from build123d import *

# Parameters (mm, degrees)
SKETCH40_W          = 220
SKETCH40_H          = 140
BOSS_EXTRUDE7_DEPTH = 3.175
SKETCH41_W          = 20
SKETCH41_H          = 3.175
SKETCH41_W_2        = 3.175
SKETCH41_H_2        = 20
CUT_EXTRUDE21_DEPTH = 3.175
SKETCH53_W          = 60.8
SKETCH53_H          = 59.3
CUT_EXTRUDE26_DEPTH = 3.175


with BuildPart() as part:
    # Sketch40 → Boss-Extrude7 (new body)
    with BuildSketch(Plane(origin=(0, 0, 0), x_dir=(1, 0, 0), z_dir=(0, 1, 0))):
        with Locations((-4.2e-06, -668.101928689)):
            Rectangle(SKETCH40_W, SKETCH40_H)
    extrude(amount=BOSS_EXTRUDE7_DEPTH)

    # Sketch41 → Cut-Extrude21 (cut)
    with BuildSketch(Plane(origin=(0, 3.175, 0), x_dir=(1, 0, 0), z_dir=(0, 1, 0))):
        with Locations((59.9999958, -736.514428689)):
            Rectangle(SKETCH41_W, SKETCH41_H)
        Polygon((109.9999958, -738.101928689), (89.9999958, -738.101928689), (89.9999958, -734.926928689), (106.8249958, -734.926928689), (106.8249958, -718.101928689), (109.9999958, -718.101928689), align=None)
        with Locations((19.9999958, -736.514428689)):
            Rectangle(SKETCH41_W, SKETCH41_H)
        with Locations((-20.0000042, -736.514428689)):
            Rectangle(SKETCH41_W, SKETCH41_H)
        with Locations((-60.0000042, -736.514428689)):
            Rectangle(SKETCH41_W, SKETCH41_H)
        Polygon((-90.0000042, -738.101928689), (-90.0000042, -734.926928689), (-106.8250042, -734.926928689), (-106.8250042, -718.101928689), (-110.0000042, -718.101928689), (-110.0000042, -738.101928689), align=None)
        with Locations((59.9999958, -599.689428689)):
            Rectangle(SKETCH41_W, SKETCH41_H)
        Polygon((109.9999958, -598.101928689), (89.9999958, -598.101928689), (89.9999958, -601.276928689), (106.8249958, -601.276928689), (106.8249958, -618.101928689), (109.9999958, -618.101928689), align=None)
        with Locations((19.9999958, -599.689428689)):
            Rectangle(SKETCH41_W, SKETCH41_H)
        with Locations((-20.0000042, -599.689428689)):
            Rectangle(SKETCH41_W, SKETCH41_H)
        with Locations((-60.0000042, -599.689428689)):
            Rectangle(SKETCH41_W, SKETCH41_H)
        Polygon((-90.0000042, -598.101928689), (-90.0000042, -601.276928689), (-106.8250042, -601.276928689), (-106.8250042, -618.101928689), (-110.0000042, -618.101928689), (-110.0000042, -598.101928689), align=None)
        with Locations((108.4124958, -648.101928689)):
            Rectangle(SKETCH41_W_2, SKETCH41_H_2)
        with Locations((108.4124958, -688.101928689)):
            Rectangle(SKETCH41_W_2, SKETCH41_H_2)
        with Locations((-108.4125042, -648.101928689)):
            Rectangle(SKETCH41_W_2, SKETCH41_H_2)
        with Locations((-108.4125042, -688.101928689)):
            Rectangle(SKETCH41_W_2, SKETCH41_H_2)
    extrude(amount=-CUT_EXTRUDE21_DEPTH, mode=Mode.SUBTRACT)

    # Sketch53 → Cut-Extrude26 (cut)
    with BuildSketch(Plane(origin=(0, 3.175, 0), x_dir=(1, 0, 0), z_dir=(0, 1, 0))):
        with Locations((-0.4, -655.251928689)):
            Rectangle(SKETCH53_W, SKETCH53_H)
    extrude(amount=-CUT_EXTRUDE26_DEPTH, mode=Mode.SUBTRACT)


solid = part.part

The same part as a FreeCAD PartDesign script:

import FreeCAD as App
import Part
import Sketcher
from FreeCAD import Vector

doc = App.newDocument("Part")
body = doc.addObject("PartDesign::Body", "Body")

# Sketch on XZ plane
sketch1 = body.newObject("Sketcher::SketchObject", "Sketch")
sketch1.AttachmentSupport = (doc.getObject("XZ_Plane"), [""])
sketch1.MapMode = "FlatFace"
sketch1.addGeometry(Part.LineSegment(Vector(-110, 598, 0), Vector(-110, 738, 0)), False)
sketch1.addGeometry(Part.LineSegment(Vector(-110, 738, 0), Vector(110, 738, 0)), False)
sketch1.addGeometry(Part.LineSegment(Vector(110, 738, 0), Vector(110, 598, 0)), False)
sketch1.addGeometry(Part.LineSegment(Vector(110, 598, 0), Vector(-110, 598, 0)), False)
sketch1.addConstraint(Sketcher.Constraint("Coincident", 0, 2, 1, 1))
sketch1.addConstraint(Sketcher.Constraint("Coincident", 1, 2, 2, 1))
sketch1.addConstraint(Sketcher.Constraint("Coincident", 2, 2, 3, 1))
sketch1.addConstraint(Sketcher.Constraint("Coincident", 3, 2, 0, 1))
sketch1.addConstraint(Sketcher.Constraint("Vertical", 0))
sketch1.addConstraint(Sketcher.Constraint("Horizontal", 1))
sketch1.addConstraint(Sketcher.Constraint("Vertical", 2))
sketch1.addConstraint(Sketcher.Constraint("Horizontal", 3))
sketch1.addConstraint(Sketcher.Constraint("DistanceX", 1, 1, 1, 2, 220.0))
sketch1.addConstraint(Sketcher.Constraint("DistanceY", 0, 1, 0, 2, 140.0))
sketch1.addConstraint(Sketcher.Constraint("DistanceY", -1, 1, 0, 2, 738.101929))
sketch1.addConstraint(Sketcher.Constraint("DistanceX", 0, 2, -1, 1, 110.000004))
pad1 = body.newObject("PartDesign::Pad", "Pad")
pad1.Profile = sketch1
pad1.Length = 3.175
pad1.Reversed = True

# Sketch on XZ plane
sketch2 = body.newObject("Sketcher::SketchObject", "Sketch001")
sketch2.AttachmentSupport = (doc.getObject("XZ_Plane"), [""])
sketch2.MapMode = "FlatFace"
sketch2.AttachmentOffset = App.Placement(Vector(0, 0, -3.175), App.Rotation())
sketch2.addGeometry(Part.LineSegment(Vector(50, 734.9, 0), Vector(50, 738.1, 0)), False)
sketch2.addGeometry(Part.LineSegment(Vector(50, 738.1, 0), Vector(70, 738.1, 0)), False)
sketch2.addGeometry(Part.LineSegment(Vector(70, 738.1, 0), Vector(70, 734.9, 0)), False)
sketch2.addGeometry(Part.LineSegment(Vector(70, 734.9, 0), Vector(50, 734.9, 0)), False)
sketch2.addGeometry(Part.LineSegment(Vector(90, 738.1, 0), Vector(110, 738.1, 0)), False)
sketch2.addGeometry(Part.LineSegment(Vector(110, 738.1, 0), Vector(110, 718.1, 0)), False)
sketch2.addGeometry(Part.LineSegment(Vector(110, 718.1, 0), Vector(106.8, 718.1, 0)), False)
sketch2.addGeometry(Part.LineSegment(Vector(106.8, 718.1, 0), Vector(106.8, 734.9, 0)), False)
sketch2.addGeometry(Part.LineSegment(Vector(106.8, 734.9, 0), Vector(90, 734.9, 0)), False)
sketch2.addGeometry(Part.LineSegment(Vector(90, 734.9, 0), Vector(90, 738.1, 0)), False)
sketch2.addGeometry(Part.LineSegment(Vector(10, 734.9, 0), Vector(10, 738.1, 0)), False)
sketch2.addGeometry(Part.LineSegment(Vector(10, 738.1, 0), Vector(30, 738.1, 0)), False)
sketch2.addGeometry(Part.LineSegment(Vector(30, 738.1, 0), Vector(30, 734.9, 0)), False)
sketch2.addGeometry(Part.LineSegment(Vector(30, 734.9, 0), Vector(10, 734.9, 0)), False)
sketch2.addGeometry(Part.LineSegment(Vector(-30, 734.9, 0), Vector(-30, 738.1, 0)), False)
sketch2.addGeometry(Part.LineSegment(Vector(-30, 738.1, 0), Vector(-10, 738.1, 0)), False)
sketch2.addGeometry(Part.LineSegment(Vector(-10, 738.1, 0), Vector(-10, 734.9, 0)), False)
sketch2.addGeometry(Part.LineSegment(Vector(-10, 734.9, 0), Vector(-30, 734.9, 0)), False)
sketch2.addGeometry(Part.LineSegment(Vector(-70, 734.9, 0), Vector(-70, 738.1, 0)), False)
sketch2.addGeometry(Part.LineSegment(Vector(-70, 738.1, 0), Vector(-50, 738.1, 0)), False)
sketch2.addGeometry(Part.LineSegment(Vector(-50, 738.1, 0), Vector(-50, 734.9, 0)), False)
sketch2.addGeometry(Part.LineSegment(Vector(-50, 734.9, 0), Vector(-70, 734.9, 0)), False)
sketch2.addGeometry(Part.LineSegment(Vector(-90, 738.1, 0), Vector(-90, 734.9, 0)), False)
sketch2.addGeometry(Part.LineSegment(Vector(-90, 734.9, 0), Vector(-106.8, 734.9, 0)), False)
sketch2.addGeometry(Part.LineSegment(Vector(-106.8, 734.9, 0), Vector(-106.8, 718.1, 0)), False)
sketch2.addGeometry(Part.LineSegment(Vector(-106.8, 718.1, 0), Vector(-110, 718.1, 0)), False)
sketch2.addGeometry(Part.LineSegment(Vector(-110, 718.1, 0), Vector(-110, 738.1, 0)), False)
sketch2.addGeometry(Part.LineSegment(Vector(-110, 738.1, 0), Vector(-90, 738.1, 0)), False)
sketch2.addGeometry(Part.LineSegment(Vector(50, 598.1, 0), Vector(50, 601.3, 0)), False)
sketch2.addGeometry(Part.LineSegment(Vector(50, 601.3, 0), Vector(70, 601.3, 0)), False)
sketch2.addGeometry(Part.LineSegment(Vector(70, 601.3, 0), Vector(70, 598.1, 0)), False)
sketch2.addGeometry(Part.LineSegment(Vector(70, 598.1, 0), Vector(50, 598.1, 0)), False)
sketch2.addGeometry(Part.LineSegment(Vector(110, 598.1, 0), Vector(90, 598.1, 0)), False)
sketch2.addGeometry(Part.LineSegment(Vector(90, 598.1, 0), Vector(90, 601.3, 0)), False)
sketch2.addGeometry(Part.LineSegment(Vector(90, 601.3, 0), Vector(106.8, 601.3, 0)), False)
sketch2.addGeometry(Part.LineSegment(Vector(106.8, 601.3, 0), Vector(106.8, 618.1, 0)), False)
sketch2.addGeometry(Part.LineSegment(Vector(106.8, 618.1, 0), Vector(110, 618.1, 0)), False)
sketch2.addGeometry(Part.LineSegment(Vector(110, 618.1, 0), Vector(110, 598.1, 0)), False)
sketch2.addGeometry(Part.LineSegment(Vector(10, 598.1, 0), Vector(10, 601.3, 0)), False)
sketch2.addGeometry(Part.LineSegment(Vector(10, 601.3, 0), Vector(30, 601.3, 0)), False)
sketch2.addGeometry(Part.LineSegment(Vector(30, 601.3, 0), Vector(30, 598.1, 0)), False)
sketch2.addGeometry(Part.LineSegment(Vector(30, 598.1, 0), Vector(10, 598.1, 0)), False)
sketch2.addGeometry(Part.LineSegment(Vector(-30, 598.1, 0), Vector(-30, 601.3, 0)), False)
sketch2.addGeometry(Part.LineSegment(Vector(-30, 601.3, 0), Vector(-10, 601.3, 0)), False)
sketch2.addGeometry(Part.LineSegment(Vector(-10, 601.3, 0), Vector(-10, 598.1, 0)), False)
sketch2.addGeometry(Part.LineSegment(Vector(-10, 598.1, 0), Vector(-30, 598.1, 0)), False)
sketch2.addGeometry(Part.LineSegment(Vector(-70, 598.1, 0), Vector(-70, 601.3, 0)), False)
sketch2.addGeometry(Part.LineSegment(Vector(-70, 601.3, 0), Vector(-50, 601.3, 0)), False)
sketch2.addGeometry(Part.LineSegment(Vector(-50, 601.3, 0), Vector(-50, 598.1, 0)), False)
sketch2.addGeometry(Part.LineSegment(Vector(-50, 598.1, 0), Vector(-70, 598.1, 0)), False)
sketch2.addGeometry(Part.LineSegment(Vector(-90, 601.3, 0), Vector(-90, 598.1, 0)), False)
sketch2.addGeometry(Part.LineSegment(Vector(-90, 598.1, 0), Vector(-110, 598.1, 0)), False)
sketch2.addGeometry(Part.LineSegment(Vector(-110, 598.1, 0), Vector(-110, 618.1, 0)), False)
sketch2.addGeometry(Part.LineSegment(Vector(-110, 618.1, 0), Vector(-106.8, 618.1, 0)), False)
sketch2.addGeometry(Part.LineSegment(Vector(-106.8, 618.1, 0), Vector(-106.8, 601.3, 0)), False)
sketch2.addGeometry(Part.LineSegment(Vector(-106.8, 601.3, 0), Vector(-90, 601.3, 0)), False)
sketch2.addGeometry(Part.LineSegment(Vector(106.8, 638.1, 0), Vector(106.8, 658.1, 0)), False)
sketch2.addGeometry(Part.LineSegment(Vector(106.8, 658.1, 0), Vector(110, 658.1, 0)), False)
sketch2.addGeometry(Part.LineSegment(Vector(110, 658.1, 0), Vector(110, 638.1, 0)), False)
sketch2.addGeometry(Part.LineSegment(Vector(110, 638.1, 0), Vector(106.8, 638.1, 0)), False)
sketch2.addGeometry(Part.LineSegment(Vector(106.8, 678.1, 0), Vector(106.8, 698.1, 0)), False)
sketch2.addGeometry(Part.LineSegment(Vector(106.8, 698.1, 0), Vector(110, 698.1, 0)), False)
sketch2.addGeometry(Part.LineSegment(Vector(110, 698.1, 0), Vector(110, 678.1, 0)), False)
sketch2.addGeometry(Part.LineSegment(Vector(110, 678.1, 0), Vector(106.8, 678.1, 0)), False)
sketch2.addGeometry(Part.LineSegment(Vector(-110, 638.1, 0), Vector(-110, 658.1, 0)), False)
sketch2.addGeometry(Part.LineSegment(Vector(-110, 658.1, 0), Vector(-106.8, 658.1, 0)), False)
sketch2.addGeometry(Part.LineSegment(Vector(-106.8, 658.1, 0), Vector(-106.8, 638.1, 0)), False)
sketch2.addGeometry(Part.LineSegment(Vector(-106.8, 638.1, 0), Vector(-110, 638.1, 0)), False)
sketch2.addGeometry(Part.LineSegment(Vector(-110, 678.1, 0), Vector(-110, 698.1, 0)), False)
sketch2.addGeometry(Part.LineSegment(Vector(-110, 698.1, 0), Vector(-106.8, 698.1, 0)), False)
sketch2.addGeometry(Part.LineSegment(Vector(-106.8, 698.1, 0), Vector(-106.8, 678.1, 0)), False)
sketch2.addGeometry(Part.LineSegment(Vector(-106.8, 678.1, 0), Vector(-110, 678.1, 0)), False)
sketch2.addConstraint(Sketcher.Constraint("Coincident", 0, 2, 1, 1))
sketch2.addConstraint(Sketcher.Constraint("Coincident", 1, 2, 2, 1))
sketch2.addConstraint(Sketcher.Constraint("Coincident", 2, 2, 3, 1))
sketch2.addConstraint(Sketcher.Constraint("Coincident", 3, 2, 0, 1))
sketch2.addConstraint(Sketcher.Constraint("Coincident", 4, 2, 5, 1))
sketch2.addConstraint(Sketcher.Constraint("Coincident", 5, 2, 6, 1))
sketch2.addConstraint(Sketcher.Constraint("Coincident", 6, 2, 7, 1))
sketch2.addConstraint(Sketcher.Constraint("Coincident", 7, 2, 8, 1))
sketch2.addConstraint(Sketcher.Constraint("Coincident", 8, 2, 9, 1))
sketch2.addConstraint(Sketcher.Constraint("Coincident", 9, 2, 4, 1))
sketch2.addConstraint(Sketcher.Constraint("Coincident", 10, 2, 11, 1))
sketch2.addConstraint(Sketcher.Constraint("Coincident", 11, 2, 12, 1))
sketch2.addConstraint(Sketcher.Constraint("Coincident", 12, 2, 13, 1))
sketch2.addConstraint(Sketcher.Constraint("Coincident", 13, 2, 10, 1))
sketch2.addConstraint(Sketcher.Constraint("Coincident", 14, 2, 15, 1))
sketch2.addConstraint(Sketcher.Constraint("Coincident", 15, 2, 16, 1))
sketch2.addConstraint(Sketcher.Constraint("Coincident", 16, 2, 17, 1))
sketch2.addConstraint(Sketcher.Constraint("Coincident", 17, 2, 14, 1))
sketch2.addConstraint(Sketcher.Constraint("Coincident", 18, 2, 19, 1))
sketch2.addConstraint(Sketcher.Constraint("Coincident", 19, 2, 20, 1))
sketch2.addConstraint(Sketcher.Constraint("Coincident", 20, 2, 21, 1))
sketch2.addConstraint(Sketcher.Constraint("Coincident", 21, 2, 18, 1))
sketch2.addConstraint(Sketcher.Constraint("Coincident", 22, 2, 23, 1))
sketch2.addConstraint(Sketcher.Constraint("Coincident", 23, 2, 24, 1))
sketch2.addConstraint(Sketcher.Constraint("Coincident", 24, 2, 25, 1))
sketch2.addConstraint(Sketcher.Constraint("Coincident", 25, 2, 26, 1))
sketch2.addConstraint(Sketcher.Constraint("Coincident", 26, 2, 27, 1))
sketch2.addConstraint(Sketcher.Constraint("Coincident", 27, 2, 22, 1))
sketch2.addConstraint(Sketcher.Constraint("Coincident", 28, 2, 29, 1))
sketch2.addConstraint(Sketcher.Constraint("Coincident", 29, 2, 30, 1))
sketch2.addConstraint(Sketcher.Constraint("Coincident", 30, 2, 31, 1))
sketch2.addConstraint(Sketcher.Constraint("Coincident", 31, 2, 28, 1))
sketch2.addConstraint(Sketcher.Constraint("Coincident", 32, 2, 33, 1))
sketch2.addConstraint(Sketcher.Constraint("Coincident", 33, 2, 34, 1))
sketch2.addConstraint(Sketcher.Constraint("Coincident", 34, 2, 35, 1))
sketch2.addConstraint(Sketcher.Constraint("Coincident", 35, 2, 36, 1))
sketch2.addConstraint(Sketcher.Constraint("Coincident", 36, 2, 37, 1))
sketch2.addConstraint(Sketcher.Constraint("Coincident", 37, 2, 32, 1))
sketch2.addConstraint(Sketcher.Constraint("Coincident", 38, 2, 39, 1))
sketch2.addConstraint(Sketcher.Constraint("Coincident", 39, 2, 40, 1))
sketch2.addConstraint(Sketcher.Constraint("Coincident", 40, 2, 41, 1))
sketch2.addConstraint(Sketcher.Constraint("Coincident", 41, 2, 38, 1))
sketch2.addConstraint(Sketcher.Constraint("Coincident", 42, 2, 43, 1))
sketch2.addConstraint(Sketcher.Constraint("Coincident", 43, 2, 44, 1))
sketch2.addConstraint(Sketcher.Constraint("Coincident", 44, 2, 45, 1))
sketch2.addConstraint(Sketcher.Constraint("Coincident", 45, 2, 42, 1))
sketch2.addConstraint(Sketcher.Constraint("Coincident", 46, 2, 47, 1))
sketch2.addConstraint(Sketcher.Constraint("Coincident", 47, 2, 48, 1))
sketch2.addConstraint(Sketcher.Constraint("Coincident", 48, 2, 49, 1))
sketch2.addConstraint(Sketcher.Constraint("Coincident", 49, 2, 46, 1))
sketch2.addConstraint(Sketcher.Constraint("Coincident", 50, 2, 51, 1))
sketch2.addConstraint(Sketcher.Constraint("Coincident", 51, 2, 52, 1))
sketch2.addConstraint(Sketcher.Constraint("Coincident", 52, 2, 53, 1))
sketch2.addConstraint(Sketcher.Constraint("Coincident", 53, 2, 54, 1))
sketch2.addConstraint(Sketcher.Constraint("Coincident", 54, 2, 55, 1))
sketch2.addConstraint(Sketcher.Constraint("Coincident", 55, 2, 50, 1))
sketch2.addConstraint(Sketcher.Constraint("Coincident", 56, 2, 57, 1))
sketch2.addConstraint(Sketcher.Constraint("Coincident", 57, 2, 58, 1))
sketch2.addConstraint(Sketcher.Constraint("Coincident", 58, 2, 59, 1))
sketch2.addConstraint(Sketcher.Constraint("Coincident", 59, 2, 56, 1))
sketch2.addConstraint(Sketcher.Constraint("Coincident", 60, 2, 61, 1))
sketch2.addConstraint(Sketcher.Constraint("Coincident", 61, 2, 62, 1))
sketch2.addConstraint(Sketcher.Constraint("Coincident", 62, 2, 63, 1))
sketch2.addConstraint(Sketcher.Constraint("Coincident", 63, 2, 60, 1))
sketch2.addConstraint(Sketcher.Constraint("Coincident", 64, 2, 65, 1))
sketch2.addConstraint(Sketcher.Constraint("Coincident", 65, 2, 66, 1))
sketch2.addConstraint(Sketcher.Constraint("Coincident", 66, 2, 67, 1))
sketch2.addConstraint(Sketcher.Constraint("Coincident", 67, 2, 64, 1))
sketch2.addConstraint(Sketcher.Constraint("Coincident", 68, 2, 69, 1))
sketch2.addConstraint(Sketcher.Constraint("Coincident", 69, 2, 70, 1))
sketch2.addConstraint(Sketcher.Constraint("Coincident", 70, 2, 71, 1))
sketch2.addConstraint(Sketcher.Constraint("Coincident", 71, 2, 68, 1))
sketch2.addConstraint(Sketcher.Constraint("Vertical", 0))
sketch2.addConstraint(Sketcher.Constraint("Horizontal", 1))
sketch2.addConstraint(Sketcher.Constraint("Vertical", 2))
sketch2.addConstraint(Sketcher.Constraint("Horizontal", 3))
sketch2.addConstraint(Sketcher.Constraint("Horizontal", 4))
sketch2.addConstraint(Sketcher.Constraint("Vertical", 5))
sketch2.addConstraint(Sketcher.Constraint("Horizontal", 6))
sketch2.addConstraint(Sketcher.Constraint("Vertical", 7))
sketch2.addConstraint(Sketcher.Constraint("Horizontal", 8))
sketch2.addConstraint(Sketcher.Constraint("Vertical", 9))
sketch2.addConstraint(Sketcher.Constraint("Vertical", 10))
sketch2.addConstraint(Sketcher.Constraint("Horizontal", 11))
sketch2.addConstraint(Sketcher.Constraint("Vertical", 12))
sketch2.addConstraint(Sketcher.Constraint("Horizontal", 13))
sketch2.addConstraint(Sketcher.Constraint("Vertical", 14))
sketch2.addConstraint(Sketcher.Constraint("Horizontal", 15))
sketch2.addConstraint(Sketcher.Constraint("Vertical", 16))
sketch2.addConstraint(Sketcher.Constraint("Horizontal", 17))
sketch2.addConstraint(Sketcher.Constraint("Vertical", 18))
sketch2.addConstraint(Sketcher.Constraint("Horizontal", 19))
sketch2.addConstraint(Sketcher.Constraint("Vertical", 20))
sketch2.addConstraint(Sketcher.Constraint("Horizontal", 21))
sketch2.addConstraint(Sketcher.Constraint("Vertical", 22))
sketch2.addConstraint(Sketcher.Constraint("Horizontal", 23))
sketch2.addConstraint(Sketcher.Constraint("Vertical", 24))
sketch2.addConstraint(Sketcher.Constraint("Horizontal", 25))
sketch2.addConstraint(Sketcher.Constraint("Vertical", 26))
sketch2.addConstraint(Sketcher.Constraint("Horizontal", 27))
sketch2.addConstraint(Sketcher.Constraint("Vertical", 28))
sketch2.addConstraint(Sketcher.Constraint("Horizontal", 29))
sketch2.addConstraint(Sketcher.Constraint("Vertical", 30))
sketch2.addConstraint(Sketcher.Constraint("Horizontal", 31))
sketch2.addConstraint(Sketcher.Constraint("Horizontal", 32))
sketch2.addConstraint(Sketcher.Constraint("Vertical", 33))
sketch2.addConstraint(Sketcher.Constraint("Horizontal", 34))
sketch2.addConstraint(Sketcher.Constraint("Vertical", 35))
sketch2.addConstraint(Sketcher.Constraint("Horizontal", 36))
sketch2.addConstraint(Sketcher.Constraint("Vertical", 37))
sketch2.addConstraint(Sketcher.Constraint("Vertical", 38))
sketch2.addConstraint(Sketcher.Constraint("Horizontal", 39))
sketch2.addConstraint(Sketcher.Constraint("Vertical", 40))
sketch2.addConstraint(Sketcher.Constraint("Horizontal", 41))
sketch2.addConstraint(Sketcher.Constraint("Vertical", 42))
sketch2.addConstraint(Sketcher.Constraint("Horizontal", 43))
sketch2.addConstraint(Sketcher.Constraint("Vertical", 44))
sketch2.addConstraint(Sketcher.Constraint("Horizontal", 45))
sketch2.addConstraint(Sketcher.Constraint("Vertical", 46))
sketch2.addConstraint(Sketcher.Constraint("Horizontal", 47))
sketch2.addConstraint(Sketcher.Constraint("Vertical", 48))
sketch2.addConstraint(Sketcher.Constraint("Horizontal", 49))
sketch2.addConstraint(Sketcher.Constraint("Vertical", 50))
sketch2.addConstraint(Sketcher.Constraint("Horizontal", 51))
sketch2.addConstraint(Sketcher.Constraint("Vertical", 52))
sketch2.addConstraint(Sketcher.Constraint("Horizontal", 53))
sketch2.addConstraint(Sketcher.Constraint("Vertical", 54))
sketch2.addConstraint(Sketcher.Constraint("Horizontal", 55))
sketch2.addConstraint(Sketcher.Constraint("Vertical", 56))
sketch2.addConstraint(Sketcher.Constraint("Horizontal", 57))
sketch2.addConstraint(Sketcher.Constraint("Vertical", 58))
sketch2.addConstraint(Sketcher.Constraint("Horizontal", 59))
sketch2.addConstraint(Sketcher.Constraint("Vertical", 60))
sketch2.addConstraint(Sketcher.Constraint("Horizontal", 61))
sketch2.addConstraint(Sketcher.Constraint("Vertical", 62))
sketch2.addConstraint(Sketcher.Constraint("Horizontal", 63))
sketch2.addConstraint(Sketcher.Constraint("Vertical", 64))
sketch2.addConstraint(Sketcher.Constraint("Horizontal", 65))
sketch2.addConstraint(Sketcher.Constraint("Vertical", 66))
sketch2.addConstraint(Sketcher.Constraint("Horizontal", 67))
sketch2.addConstraint(Sketcher.Constraint("Vertical", 68))
sketch2.addConstraint(Sketcher.Constraint("Horizontal", 69))
sketch2.addConstraint(Sketcher.Constraint("Vertical", 70))
sketch2.addConstraint(Sketcher.Constraint("Horizontal", 71))
sketch2.addConstraint(Sketcher.Constraint("Symmetric", 11, 2, 14, 2, -2))
sketch2.addConstraint(Sketcher.Constraint("Symmetric", 13, 2, 16, 2, -2))
sketch2.addConstraint(Sketcher.Constraint("Symmetric", 1, 2, 18, 2, -2))
sketch2.addConstraint(Sketcher.Constraint("Symmetric", 3, 2, 20, 2, -2))
sketch2.addConstraint(Sketcher.Constraint("Symmetric", 8, 2, 22, 2, -2))
sketch2.addConstraint(Sketcher.Constraint("Symmetric", 6, 2, 24, 2, -2))
sketch2.addConstraint(Sketcher.Constraint("Symmetric", 4, 2, 26, 2, -2))
sketch2.addConstraint(Sketcher.Constraint("Symmetric", 39, 2, 42, 2, -2))
sketch2.addConstraint(Sketcher.Constraint("Symmetric", 41, 2, 44, 2, -2))
sketch2.addConstraint(Sketcher.Constraint("Symmetric", 29, 2, 46, 2, -2))
sketch2.addConstraint(Sketcher.Constraint("Symmetric", 31, 2, 48, 2, -2))
sketch2.addConstraint(Sketcher.Constraint("Symmetric", 32, 2, 50, 2, -2))
sketch2.addConstraint(Sketcher.Constraint("Symmetric", 36, 2, 52, 2, -2))
sketch2.addConstraint(Sketcher.Constraint("Symmetric", 34, 2, 54, 2, -2))
sketch2.addConstraint(Sketcher.Constraint("Symmetric", 57, 2, 64, 2, -2))
sketch2.addConstraint(Sketcher.Constraint("Symmetric", 59, 2, 66, 2, -2))
sketch2.addConstraint(Sketcher.Constraint("Symmetric", 61, 2, 68, 2, -2))
sketch2.addConstraint(Sketcher.Constraint("Symmetric", 63, 2, 70, 2, -2))
sketch2.addConstraint(Sketcher.Constraint("Horizontal", 1, 2, 4, 2))
sketch2.addConstraint(Sketcher.Constraint("Horizontal", 3, 2, 7, 2))
sketch2.addConstraint(Sketcher.Constraint("Horizontal", 9, 2, 10, 2))
sketch2.addConstraint(Sketcher.Constraint("Horizontal", 8, 2, 12, 2))
sketch2.addConstraint(Sketcher.Constraint("Horizontal", 31, 2, 32, 2))
sketch2.addConstraint(Sketcher.Constraint("Horizontal", 29, 2, 33, 2))
sketch2.addConstraint(Sketcher.Constraint("Horizontal", 34, 2, 38, 2))
sketch2.addConstraint(Sketcher.Constraint("Horizontal", 37, 2, 40, 2))
sketch2.addConstraint(Sketcher.Constraint("Vertical", 3, 2, 28, 2))
sketch2.addConstraint(Sketcher.Constraint("Vertical", 2, 2, 29, 2))
sketch2.addConstraint(Sketcher.Constraint("Vertical", 9, 2, 32, 2))
sketch2.addConstraint(Sketcher.Constraint("Vertical", 7, 2, 34, 2))
sketch2.addConstraint(Sketcher.Constraint("Vertical", 5, 2, 36, 2))
sketch2.addConstraint(Sketcher.Constraint("Vertical", 13, 2, 38, 2))
sketch2.addConstraint(Sketcher.Constraint("Vertical", 12, 2, 39, 2))
sketch2.addConstraint(Sketcher.Constraint("Vertical", 35, 2, 56, 2))
sketch2.addConstraint(Sketcher.Constraint("Vertical", 37, 2, 57, 2))
sketch2.addConstraint(Sketcher.Constraint("Vertical", 59, 2, 60, 2))
sketch2.addConstraint(Sketcher.Constraint("Vertical", 58, 2, 61, 2))
sketch2.addConstraint(Sketcher.Constraint("Equal", 3, 4))
sketch2.addConstraint(Sketcher.Constraint("Equal", 4, 11))
sketch2.addConstraint(Sketcher.Constraint("Equal", 71, 0))
sketch2.addConstraint(Sketcher.Constraint("Equal", 51, 5))
sketch2.addConstraint(Sketcher.Constraint("Equal", 22, 28))
sketch2.addConstraint(Sketcher.Constraint("Equal", 24, 35))
sketch2.addConstraint(Sketcher.Constraint("Equal", 52, 56))
sketch2.addConstraint(Sketcher.Constraint("Equal", 58, 60))
sketch2.addConstraint(Sketcher.Constraint("DistanceX", 1, 1, 1, 2, 20.0))
sketch2.addConstraint(Sketcher.Constraint("DistanceX", 6, 2, 6, 1, 3.175))
sketch2.addConstraint(Sketcher.Constraint("DistanceY", -1, 1, 0, 2, 738.101929))
sketch2.addConstraint(Sketcher.Constraint("DistanceY", -1, 1, 28, 2, 601.276929))
sketch2.addConstraint(Sketcher.Constraint("DistanceY", -1, 1, 56, 2, 658.101929))
sketch2.addConstraint(Sketcher.Constraint("DistanceY", -1, 1, 60, 2, 698.101929))
sketch2.addConstraint(Sketcher.Constraint("DistanceX", -1, 1, 0, 2, 49.999996))
sketch2.addConstraint(Sketcher.Constraint("DistanceX", -1, 1, 4, 2, 109.999996))
sketch2.addConstraint(Sketcher.Constraint("DistanceX", -1, 1, 10, 2, 9.999996))
pocket1 = body.newObject("PartDesign::Pocket", "Pocket")
pocket1.Profile = sketch2
pocket1.Length = 3.175
pocket1.Reversed = True

# Sketch on XZ plane
sketch3 = body.newObject("Sketcher::SketchObject", "Sketch002")
sketch3.AttachmentSupport = (doc.getObject("XZ_Plane"), [""])
sketch3.MapMode = "FlatFace"
sketch3.AttachmentOffset = App.Placement(Vector(0, 0, -3.175), App.Rotation())
sketch3.addGeometry(Part.LineSegment(Vector(-31, 626, 0), Vector(-31, 685, 0)), False)
sketch3.addGeometry(Part.LineSegment(Vector(-31, 685, 0), Vector(30, 685, 0)), False)
sketch3.addGeometry(Part.LineSegment(Vector(30, 685, 0), Vector(30, 626, 0)), False)
sketch3.addGeometry(Part.LineSegment(Vector(30, 626, 0), Vector(-31, 626, 0)), False)
sketch3.addConstraint(Sketcher.Constraint("Coincident", 0, 2, 1, 1))
sketch3.addConstraint(Sketcher.Constraint("Coincident", 1, 2, 2, 1))
sketch3.addConstraint(Sketcher.Constraint("Coincident", 2, 2, 3, 1))
sketch3.addConstraint(Sketcher.Constraint("Coincident", 3, 2, 0, 1))
sketch3.addConstraint(Sketcher.Constraint("Vertical", 0))
sketch3.addConstraint(Sketcher.Constraint("Horizontal", 1))
sketch3.addConstraint(Sketcher.Constraint("Vertical", 2))
sketch3.addConstraint(Sketcher.Constraint("Horizontal", 3))
sketch3.addConstraint(Sketcher.Constraint("DistanceX", 1, 1, 1, 2, 60.8))
sketch3.addConstraint(Sketcher.Constraint("DistanceY", 0, 1, 0, 2, 59.3))
sketch3.addConstraint(Sketcher.Constraint("DistanceX", -1, 1, 1, 2, 30.0))
sketch3.addConstraint(Sketcher.Constraint("DistanceY", -1, 1, 0, 2, 684.901929))
pocket2 = body.newObject("PartDesign::Pocket", "Pocket001")
pocket2.Profile = sketch3
pocket2.Length = 3.175
pocket2.Reversed = True

doc.recompute()
